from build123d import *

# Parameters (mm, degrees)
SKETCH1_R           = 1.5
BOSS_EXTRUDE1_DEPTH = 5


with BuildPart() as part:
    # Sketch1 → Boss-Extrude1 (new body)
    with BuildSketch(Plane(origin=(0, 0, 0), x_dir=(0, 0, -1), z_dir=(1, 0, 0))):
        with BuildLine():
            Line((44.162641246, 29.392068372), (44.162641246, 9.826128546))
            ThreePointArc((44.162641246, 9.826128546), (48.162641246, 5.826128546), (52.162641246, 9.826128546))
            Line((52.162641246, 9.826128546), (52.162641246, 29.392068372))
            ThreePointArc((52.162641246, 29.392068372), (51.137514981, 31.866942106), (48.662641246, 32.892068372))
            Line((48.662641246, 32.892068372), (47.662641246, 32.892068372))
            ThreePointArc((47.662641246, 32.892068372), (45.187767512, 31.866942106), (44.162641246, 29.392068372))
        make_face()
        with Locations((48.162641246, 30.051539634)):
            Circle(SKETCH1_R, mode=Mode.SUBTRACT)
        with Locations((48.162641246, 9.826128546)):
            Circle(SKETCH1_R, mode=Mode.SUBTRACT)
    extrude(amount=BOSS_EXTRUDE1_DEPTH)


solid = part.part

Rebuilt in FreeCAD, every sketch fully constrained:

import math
import FreeCAD as App
import Part
import Sketcher
from FreeCAD import Vector

doc = App.newDocument("Part")
params = doc.addObject("Spreadsheet::Sheet", "Params")
for row, (alias, value) in enumerate([
    ("sketch1_diameter", "3 mm"),
    ("sketch1_radius", "4 mm"),
    ("sketch1_radius2", "3.5 mm"),
    ("pad1_length", "5 mm"),
], start=1):
    params.set(f"A{row}", alias)
    params.set(f"B{row}", "=" + value)
    params.setAlias(f"B{row}", alias)

body = doc.addObject("PartDesign::Body", "Body")

sketch1 = body.newObject("Sketcher::SketchObject", "Sketch")
sketch1.AttachmentSupport = (doc.getObject("YZ_Plane"), [""])
sketch1.MapMode = "FlatFace"
sketch1.addGeometry([
    Part.LineSegment(Vector(29.392068, -44.162641, 0), Vector(9.826129, -44.162641, 0)),
    Part.ArcOfCircle(Part.Circle(Vector(9.826129, -48.162641, 0), Vector(0, 0, 1), 4), math.radians(90), math.radians(270)),
    Part.LineSegment(Vector(9.826129, -52.162641, 0), Vector(29.392068, -52.162641, 0)),
    Part.ArcOfCircle(Part.Circle(Vector(29.392068, -48.662641, 0), Vector(0, 0, 1), 3.5), math.radians(-90), math.radians(0)),
    Part.LineSegment(Vector(32.892068, -48.662641, 0), Vector(32.892068, -47.662641, 0)),
    Part.ArcOfCircle(Part.Circle(Vector(29.392068, -47.662641, 0), Vector(0, 0, 1), 3.5), math.radians(0), math.radians(90)),
    Part.Circle(Vector(9.826129, -48.162641, 0), Vector(0, 0, 1), 1.5),
    Part.Circle(Vector(30.05154, -48.162641, 0), Vector(0, 0, 1), 1.5),
], False)
sketch1.addConstraint([
    Sketcher.Constraint("Tangent", 0, 2, 1, 1),
    Sketcher.Constraint("Tangent", 1, 2, 2, 1),
    Sketcher.Constraint("Tangent", 2, 2, 3, 1),
    Sketcher.Constraint("Tangent", 3, 2, 4, 1),
    Sketcher.Constraint("Tangent", 4, 2, 5, 1),
    Sketcher.Constraint("Tangent", 5, 2, 0, 1),
    Sketcher.Constraint("Horizontal", 0),
    Sketcher.Constraint("Horizontal", 2),
    Sketcher.Constraint("Vertical", 4),
    Sketcher.Constraint("Coincident", 6, 3, 1, 3),
    Sketcher.Constraint("Equal", 3, 5),
    Sketcher.Constraint("Equal", 6, 7),
    Sketcher.Constraint("Horizontal", 6, 3, 7, 3),
    Sketcher.Constraint("Diameter", 6, 3.0),
    Sketcher.Constraint("Radius", 1, 4.0),
    Sketcher.Constraint("Radius", 3, 3.5),
    Sketcher.Constraint("DistanceX", 0, 2, 0, 1, 19.56594),
    Sketcher.Constraint("DistanceX", -1, 1, 1, 3, 9.826129),
    Sketcher.Constraint("DistanceY", 1, 3, -1, 1, 48.162641),
    Sketcher.Constraint("DistanceX", -1, 1, 7, 3, 30.05154),
])
sketch1.setExpression("Constraints[13]", "Params.sketch1_diameter")
sketch1.setExpression("Constraints[14]", "Params.sketch1_radius")
sketch1.setExpression("Constraints[15]", "Params.sketch1_radius2")
pad1 = body.newObject("PartDesign::Pad", "Pad")
pad1.Profile = sketch1
pad1.setExpression("Length", "Params.pad1_length")

doc.recompute()
